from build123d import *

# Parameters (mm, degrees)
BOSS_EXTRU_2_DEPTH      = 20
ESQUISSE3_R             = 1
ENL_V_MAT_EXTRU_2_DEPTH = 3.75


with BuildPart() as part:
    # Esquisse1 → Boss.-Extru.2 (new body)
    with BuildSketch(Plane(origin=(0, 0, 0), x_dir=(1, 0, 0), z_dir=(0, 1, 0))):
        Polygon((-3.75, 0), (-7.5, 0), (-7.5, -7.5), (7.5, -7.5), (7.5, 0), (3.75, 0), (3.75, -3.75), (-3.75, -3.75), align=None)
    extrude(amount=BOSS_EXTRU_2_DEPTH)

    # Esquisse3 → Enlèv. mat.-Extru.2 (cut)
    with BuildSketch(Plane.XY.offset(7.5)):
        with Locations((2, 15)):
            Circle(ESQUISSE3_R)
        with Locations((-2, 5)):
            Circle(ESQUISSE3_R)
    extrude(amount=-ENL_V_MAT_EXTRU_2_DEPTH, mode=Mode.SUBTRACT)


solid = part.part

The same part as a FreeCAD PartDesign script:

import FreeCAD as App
import Part
import Sketcher
Q = App.Units.Quantity

doc = App.newDocument("Part")
body = doc.addObject("PartDesign::Body", "Body")

# Sketch on XZ plane
sketch1 = body.newObject("Sketcher::SketchObject", "Sketch")
sketch1.AttachmentSupport = (doc.getObject("XZ_Plane"), [""])
sketch1.MapMode = "FlatFace"
sketch1.addGeometry(Part.LineSegment(App.Vector(-3.8, 0, 0), App.Vector(-7.5, 0, 0)), False)
sketch1.addGeometry(Part.LineSegment(App.Vector(-7.5, 0, 0), App.Vector(-7.5, 7.5, 0)), False)
sketch1.addGeometry(Part.LineSegment(App.Vector(-7.5, 7.5, 0), App.Vector(7.5, 7.5, 0)), False)
sketch1.addGeometry(Part.LineSegment(App.Vector(7.5, 7.5, 0), App.Vector(7.5, 0, 0)), False)
sketch1.addGeometry(Part.LineSegment(App.Vector(7.5, 0, 0), App.Vector(3.8, 0, 0)), False)
sketch1.addGeometry(Part.LineSegment(App.Vector(3.8, 0, 0), App.Vector(3.8, 3.8, 0)), False)
sketch1.addGeometry(Part.LineSegment(App.Vector(3.8, 3.8, 0), App.Vector(-3.8, 3.8, 0)), False)
sketch1.addGeometry(Part.LineSegment(App.Vector(-3.8, 3.8, 0), App.Vector(-3.8, 0, 0)), False)
sketch1.addConstraint(Sketcher.Constraint("Coincident", 0, 2, 1, 1))
sketch1.addConstraint(Sketcher.Constraint("Coincident", 1, 2, 2, 1))
sketch1.addConstraint(Sketcher.Constraint("Coincident", 2, 2, 3, 1))
sketch1.addConstraint(Sketcher.Constraint("Coincident", 3, 2, 4, 1))
sketch1.addConstraint(Sketcher.Constraint("Coincident", 4, 2, 5, 1))
sketch1.addConstraint(Sketcher.Constraint("Coincident", 5, 2, 6, 1))
sketch1.addConstraint(Sketcher.Constraint("Coincident", 6, 2, 7, 1))
sketch1.addConstraint(Sketcher.Constraint("Coincident", 7, 2, 0, 1))
sketch1.addConstraint(Sketcher.Constraint("Horizontal", 0))
sketch1.addConstraint(Sketcher.Constraint("Vertical", 1))
sketch1.addConstraint(Sketcher.Constraint("Horizontal", 2))
sketch1.addConstraint(Sketcher.Constraint("Vertical", 3))
sketch1.addConstraint(Sketcher.Constraint("Horizontal", 4))
sketch1.addConstraint(Sketcher.Constraint("Vertical", 5))
sketch1.addConstraint(Sketcher.Constraint("Horizontal", 6))
sketch1.addConstraint(Sketcher.Constraint("Vertical", 7))
sketch1.addConstraint(Sketcher.Constraint("Symmetric", 0, 2, 3, 2, -1, 1))
sketch1.addConstraint(Sketcher.Constraint("Symmetric", 4, 2, 7, 2, -2))
sketch1.addConstraint(Sketcher.Constraint("Equal", 6, 1))
sketch1.addConstraint(Sketcher.Constraint("Equal", 4, 5))
sketch1.addConstraint(Sketcher.Constraint("DistanceX", 2, 1, 2, 2, Q("15 mm")))
sketch1.addConstraint(Sketcher.Constraint("DistanceX", 6, 2, 6, 1, Q("7.5 mm")))
pad1 = body.newObject("PartDesign::Pad", "Pad")
pad1.Profile = sketch1
pad1.Length = 20
pad1.Reversed = True

# Sketch on XY plane
sketch2 = body.newObject("Sketcher::SketchObject", "Sketch001")
sketch2.AttachmentSupport = (doc.getObject("XY_Plane"), [""])
sketch2.MapMode = "FlatFace"
sketch2.AttachmentOffset = App.Placement(App.Vector(0, 0, 7.5), App.Rotation())
sketch2.addGeometry(Part.Circle(App.Vector(2, 15, 0), App.Vector(0, 0, 1), 1), False)
sketch2.addGeometry(Part.Circle(App.Vector(-2, 5, 0), App.Vector(0, 0, 1), 1), False)
sketch2.addConstraint(Sketcher.Constraint("Equal", 0, 1))
sketch2.addConstraint(Sketcher.Constraint("Diameter", 0, Q("2 mm")))
sketch2.addConstraint(Sketcher.Constraint("DistanceX", -1, 1, 0, 3, Q("2 mm")))
sketch2.addConstraint(Sketcher.Constraint("DistanceY", -1, 1, 0, 3, Q("15 mm")))
sketch2.addConstraint(Sketcher.Constraint("DistanceX", 1, 3, -1, 1, Q("2 mm")))
sketch2.addConstraint(Sketcher.Constraint("DistanceY", -1, 1, 1, 3, Q("5 mm")))
pocket1 = body.newObject("PartDesign::Pocket", "Pocket")
pocket1.Profile = sketch2
pocket1.Length = 3.75

doc.recompute()
